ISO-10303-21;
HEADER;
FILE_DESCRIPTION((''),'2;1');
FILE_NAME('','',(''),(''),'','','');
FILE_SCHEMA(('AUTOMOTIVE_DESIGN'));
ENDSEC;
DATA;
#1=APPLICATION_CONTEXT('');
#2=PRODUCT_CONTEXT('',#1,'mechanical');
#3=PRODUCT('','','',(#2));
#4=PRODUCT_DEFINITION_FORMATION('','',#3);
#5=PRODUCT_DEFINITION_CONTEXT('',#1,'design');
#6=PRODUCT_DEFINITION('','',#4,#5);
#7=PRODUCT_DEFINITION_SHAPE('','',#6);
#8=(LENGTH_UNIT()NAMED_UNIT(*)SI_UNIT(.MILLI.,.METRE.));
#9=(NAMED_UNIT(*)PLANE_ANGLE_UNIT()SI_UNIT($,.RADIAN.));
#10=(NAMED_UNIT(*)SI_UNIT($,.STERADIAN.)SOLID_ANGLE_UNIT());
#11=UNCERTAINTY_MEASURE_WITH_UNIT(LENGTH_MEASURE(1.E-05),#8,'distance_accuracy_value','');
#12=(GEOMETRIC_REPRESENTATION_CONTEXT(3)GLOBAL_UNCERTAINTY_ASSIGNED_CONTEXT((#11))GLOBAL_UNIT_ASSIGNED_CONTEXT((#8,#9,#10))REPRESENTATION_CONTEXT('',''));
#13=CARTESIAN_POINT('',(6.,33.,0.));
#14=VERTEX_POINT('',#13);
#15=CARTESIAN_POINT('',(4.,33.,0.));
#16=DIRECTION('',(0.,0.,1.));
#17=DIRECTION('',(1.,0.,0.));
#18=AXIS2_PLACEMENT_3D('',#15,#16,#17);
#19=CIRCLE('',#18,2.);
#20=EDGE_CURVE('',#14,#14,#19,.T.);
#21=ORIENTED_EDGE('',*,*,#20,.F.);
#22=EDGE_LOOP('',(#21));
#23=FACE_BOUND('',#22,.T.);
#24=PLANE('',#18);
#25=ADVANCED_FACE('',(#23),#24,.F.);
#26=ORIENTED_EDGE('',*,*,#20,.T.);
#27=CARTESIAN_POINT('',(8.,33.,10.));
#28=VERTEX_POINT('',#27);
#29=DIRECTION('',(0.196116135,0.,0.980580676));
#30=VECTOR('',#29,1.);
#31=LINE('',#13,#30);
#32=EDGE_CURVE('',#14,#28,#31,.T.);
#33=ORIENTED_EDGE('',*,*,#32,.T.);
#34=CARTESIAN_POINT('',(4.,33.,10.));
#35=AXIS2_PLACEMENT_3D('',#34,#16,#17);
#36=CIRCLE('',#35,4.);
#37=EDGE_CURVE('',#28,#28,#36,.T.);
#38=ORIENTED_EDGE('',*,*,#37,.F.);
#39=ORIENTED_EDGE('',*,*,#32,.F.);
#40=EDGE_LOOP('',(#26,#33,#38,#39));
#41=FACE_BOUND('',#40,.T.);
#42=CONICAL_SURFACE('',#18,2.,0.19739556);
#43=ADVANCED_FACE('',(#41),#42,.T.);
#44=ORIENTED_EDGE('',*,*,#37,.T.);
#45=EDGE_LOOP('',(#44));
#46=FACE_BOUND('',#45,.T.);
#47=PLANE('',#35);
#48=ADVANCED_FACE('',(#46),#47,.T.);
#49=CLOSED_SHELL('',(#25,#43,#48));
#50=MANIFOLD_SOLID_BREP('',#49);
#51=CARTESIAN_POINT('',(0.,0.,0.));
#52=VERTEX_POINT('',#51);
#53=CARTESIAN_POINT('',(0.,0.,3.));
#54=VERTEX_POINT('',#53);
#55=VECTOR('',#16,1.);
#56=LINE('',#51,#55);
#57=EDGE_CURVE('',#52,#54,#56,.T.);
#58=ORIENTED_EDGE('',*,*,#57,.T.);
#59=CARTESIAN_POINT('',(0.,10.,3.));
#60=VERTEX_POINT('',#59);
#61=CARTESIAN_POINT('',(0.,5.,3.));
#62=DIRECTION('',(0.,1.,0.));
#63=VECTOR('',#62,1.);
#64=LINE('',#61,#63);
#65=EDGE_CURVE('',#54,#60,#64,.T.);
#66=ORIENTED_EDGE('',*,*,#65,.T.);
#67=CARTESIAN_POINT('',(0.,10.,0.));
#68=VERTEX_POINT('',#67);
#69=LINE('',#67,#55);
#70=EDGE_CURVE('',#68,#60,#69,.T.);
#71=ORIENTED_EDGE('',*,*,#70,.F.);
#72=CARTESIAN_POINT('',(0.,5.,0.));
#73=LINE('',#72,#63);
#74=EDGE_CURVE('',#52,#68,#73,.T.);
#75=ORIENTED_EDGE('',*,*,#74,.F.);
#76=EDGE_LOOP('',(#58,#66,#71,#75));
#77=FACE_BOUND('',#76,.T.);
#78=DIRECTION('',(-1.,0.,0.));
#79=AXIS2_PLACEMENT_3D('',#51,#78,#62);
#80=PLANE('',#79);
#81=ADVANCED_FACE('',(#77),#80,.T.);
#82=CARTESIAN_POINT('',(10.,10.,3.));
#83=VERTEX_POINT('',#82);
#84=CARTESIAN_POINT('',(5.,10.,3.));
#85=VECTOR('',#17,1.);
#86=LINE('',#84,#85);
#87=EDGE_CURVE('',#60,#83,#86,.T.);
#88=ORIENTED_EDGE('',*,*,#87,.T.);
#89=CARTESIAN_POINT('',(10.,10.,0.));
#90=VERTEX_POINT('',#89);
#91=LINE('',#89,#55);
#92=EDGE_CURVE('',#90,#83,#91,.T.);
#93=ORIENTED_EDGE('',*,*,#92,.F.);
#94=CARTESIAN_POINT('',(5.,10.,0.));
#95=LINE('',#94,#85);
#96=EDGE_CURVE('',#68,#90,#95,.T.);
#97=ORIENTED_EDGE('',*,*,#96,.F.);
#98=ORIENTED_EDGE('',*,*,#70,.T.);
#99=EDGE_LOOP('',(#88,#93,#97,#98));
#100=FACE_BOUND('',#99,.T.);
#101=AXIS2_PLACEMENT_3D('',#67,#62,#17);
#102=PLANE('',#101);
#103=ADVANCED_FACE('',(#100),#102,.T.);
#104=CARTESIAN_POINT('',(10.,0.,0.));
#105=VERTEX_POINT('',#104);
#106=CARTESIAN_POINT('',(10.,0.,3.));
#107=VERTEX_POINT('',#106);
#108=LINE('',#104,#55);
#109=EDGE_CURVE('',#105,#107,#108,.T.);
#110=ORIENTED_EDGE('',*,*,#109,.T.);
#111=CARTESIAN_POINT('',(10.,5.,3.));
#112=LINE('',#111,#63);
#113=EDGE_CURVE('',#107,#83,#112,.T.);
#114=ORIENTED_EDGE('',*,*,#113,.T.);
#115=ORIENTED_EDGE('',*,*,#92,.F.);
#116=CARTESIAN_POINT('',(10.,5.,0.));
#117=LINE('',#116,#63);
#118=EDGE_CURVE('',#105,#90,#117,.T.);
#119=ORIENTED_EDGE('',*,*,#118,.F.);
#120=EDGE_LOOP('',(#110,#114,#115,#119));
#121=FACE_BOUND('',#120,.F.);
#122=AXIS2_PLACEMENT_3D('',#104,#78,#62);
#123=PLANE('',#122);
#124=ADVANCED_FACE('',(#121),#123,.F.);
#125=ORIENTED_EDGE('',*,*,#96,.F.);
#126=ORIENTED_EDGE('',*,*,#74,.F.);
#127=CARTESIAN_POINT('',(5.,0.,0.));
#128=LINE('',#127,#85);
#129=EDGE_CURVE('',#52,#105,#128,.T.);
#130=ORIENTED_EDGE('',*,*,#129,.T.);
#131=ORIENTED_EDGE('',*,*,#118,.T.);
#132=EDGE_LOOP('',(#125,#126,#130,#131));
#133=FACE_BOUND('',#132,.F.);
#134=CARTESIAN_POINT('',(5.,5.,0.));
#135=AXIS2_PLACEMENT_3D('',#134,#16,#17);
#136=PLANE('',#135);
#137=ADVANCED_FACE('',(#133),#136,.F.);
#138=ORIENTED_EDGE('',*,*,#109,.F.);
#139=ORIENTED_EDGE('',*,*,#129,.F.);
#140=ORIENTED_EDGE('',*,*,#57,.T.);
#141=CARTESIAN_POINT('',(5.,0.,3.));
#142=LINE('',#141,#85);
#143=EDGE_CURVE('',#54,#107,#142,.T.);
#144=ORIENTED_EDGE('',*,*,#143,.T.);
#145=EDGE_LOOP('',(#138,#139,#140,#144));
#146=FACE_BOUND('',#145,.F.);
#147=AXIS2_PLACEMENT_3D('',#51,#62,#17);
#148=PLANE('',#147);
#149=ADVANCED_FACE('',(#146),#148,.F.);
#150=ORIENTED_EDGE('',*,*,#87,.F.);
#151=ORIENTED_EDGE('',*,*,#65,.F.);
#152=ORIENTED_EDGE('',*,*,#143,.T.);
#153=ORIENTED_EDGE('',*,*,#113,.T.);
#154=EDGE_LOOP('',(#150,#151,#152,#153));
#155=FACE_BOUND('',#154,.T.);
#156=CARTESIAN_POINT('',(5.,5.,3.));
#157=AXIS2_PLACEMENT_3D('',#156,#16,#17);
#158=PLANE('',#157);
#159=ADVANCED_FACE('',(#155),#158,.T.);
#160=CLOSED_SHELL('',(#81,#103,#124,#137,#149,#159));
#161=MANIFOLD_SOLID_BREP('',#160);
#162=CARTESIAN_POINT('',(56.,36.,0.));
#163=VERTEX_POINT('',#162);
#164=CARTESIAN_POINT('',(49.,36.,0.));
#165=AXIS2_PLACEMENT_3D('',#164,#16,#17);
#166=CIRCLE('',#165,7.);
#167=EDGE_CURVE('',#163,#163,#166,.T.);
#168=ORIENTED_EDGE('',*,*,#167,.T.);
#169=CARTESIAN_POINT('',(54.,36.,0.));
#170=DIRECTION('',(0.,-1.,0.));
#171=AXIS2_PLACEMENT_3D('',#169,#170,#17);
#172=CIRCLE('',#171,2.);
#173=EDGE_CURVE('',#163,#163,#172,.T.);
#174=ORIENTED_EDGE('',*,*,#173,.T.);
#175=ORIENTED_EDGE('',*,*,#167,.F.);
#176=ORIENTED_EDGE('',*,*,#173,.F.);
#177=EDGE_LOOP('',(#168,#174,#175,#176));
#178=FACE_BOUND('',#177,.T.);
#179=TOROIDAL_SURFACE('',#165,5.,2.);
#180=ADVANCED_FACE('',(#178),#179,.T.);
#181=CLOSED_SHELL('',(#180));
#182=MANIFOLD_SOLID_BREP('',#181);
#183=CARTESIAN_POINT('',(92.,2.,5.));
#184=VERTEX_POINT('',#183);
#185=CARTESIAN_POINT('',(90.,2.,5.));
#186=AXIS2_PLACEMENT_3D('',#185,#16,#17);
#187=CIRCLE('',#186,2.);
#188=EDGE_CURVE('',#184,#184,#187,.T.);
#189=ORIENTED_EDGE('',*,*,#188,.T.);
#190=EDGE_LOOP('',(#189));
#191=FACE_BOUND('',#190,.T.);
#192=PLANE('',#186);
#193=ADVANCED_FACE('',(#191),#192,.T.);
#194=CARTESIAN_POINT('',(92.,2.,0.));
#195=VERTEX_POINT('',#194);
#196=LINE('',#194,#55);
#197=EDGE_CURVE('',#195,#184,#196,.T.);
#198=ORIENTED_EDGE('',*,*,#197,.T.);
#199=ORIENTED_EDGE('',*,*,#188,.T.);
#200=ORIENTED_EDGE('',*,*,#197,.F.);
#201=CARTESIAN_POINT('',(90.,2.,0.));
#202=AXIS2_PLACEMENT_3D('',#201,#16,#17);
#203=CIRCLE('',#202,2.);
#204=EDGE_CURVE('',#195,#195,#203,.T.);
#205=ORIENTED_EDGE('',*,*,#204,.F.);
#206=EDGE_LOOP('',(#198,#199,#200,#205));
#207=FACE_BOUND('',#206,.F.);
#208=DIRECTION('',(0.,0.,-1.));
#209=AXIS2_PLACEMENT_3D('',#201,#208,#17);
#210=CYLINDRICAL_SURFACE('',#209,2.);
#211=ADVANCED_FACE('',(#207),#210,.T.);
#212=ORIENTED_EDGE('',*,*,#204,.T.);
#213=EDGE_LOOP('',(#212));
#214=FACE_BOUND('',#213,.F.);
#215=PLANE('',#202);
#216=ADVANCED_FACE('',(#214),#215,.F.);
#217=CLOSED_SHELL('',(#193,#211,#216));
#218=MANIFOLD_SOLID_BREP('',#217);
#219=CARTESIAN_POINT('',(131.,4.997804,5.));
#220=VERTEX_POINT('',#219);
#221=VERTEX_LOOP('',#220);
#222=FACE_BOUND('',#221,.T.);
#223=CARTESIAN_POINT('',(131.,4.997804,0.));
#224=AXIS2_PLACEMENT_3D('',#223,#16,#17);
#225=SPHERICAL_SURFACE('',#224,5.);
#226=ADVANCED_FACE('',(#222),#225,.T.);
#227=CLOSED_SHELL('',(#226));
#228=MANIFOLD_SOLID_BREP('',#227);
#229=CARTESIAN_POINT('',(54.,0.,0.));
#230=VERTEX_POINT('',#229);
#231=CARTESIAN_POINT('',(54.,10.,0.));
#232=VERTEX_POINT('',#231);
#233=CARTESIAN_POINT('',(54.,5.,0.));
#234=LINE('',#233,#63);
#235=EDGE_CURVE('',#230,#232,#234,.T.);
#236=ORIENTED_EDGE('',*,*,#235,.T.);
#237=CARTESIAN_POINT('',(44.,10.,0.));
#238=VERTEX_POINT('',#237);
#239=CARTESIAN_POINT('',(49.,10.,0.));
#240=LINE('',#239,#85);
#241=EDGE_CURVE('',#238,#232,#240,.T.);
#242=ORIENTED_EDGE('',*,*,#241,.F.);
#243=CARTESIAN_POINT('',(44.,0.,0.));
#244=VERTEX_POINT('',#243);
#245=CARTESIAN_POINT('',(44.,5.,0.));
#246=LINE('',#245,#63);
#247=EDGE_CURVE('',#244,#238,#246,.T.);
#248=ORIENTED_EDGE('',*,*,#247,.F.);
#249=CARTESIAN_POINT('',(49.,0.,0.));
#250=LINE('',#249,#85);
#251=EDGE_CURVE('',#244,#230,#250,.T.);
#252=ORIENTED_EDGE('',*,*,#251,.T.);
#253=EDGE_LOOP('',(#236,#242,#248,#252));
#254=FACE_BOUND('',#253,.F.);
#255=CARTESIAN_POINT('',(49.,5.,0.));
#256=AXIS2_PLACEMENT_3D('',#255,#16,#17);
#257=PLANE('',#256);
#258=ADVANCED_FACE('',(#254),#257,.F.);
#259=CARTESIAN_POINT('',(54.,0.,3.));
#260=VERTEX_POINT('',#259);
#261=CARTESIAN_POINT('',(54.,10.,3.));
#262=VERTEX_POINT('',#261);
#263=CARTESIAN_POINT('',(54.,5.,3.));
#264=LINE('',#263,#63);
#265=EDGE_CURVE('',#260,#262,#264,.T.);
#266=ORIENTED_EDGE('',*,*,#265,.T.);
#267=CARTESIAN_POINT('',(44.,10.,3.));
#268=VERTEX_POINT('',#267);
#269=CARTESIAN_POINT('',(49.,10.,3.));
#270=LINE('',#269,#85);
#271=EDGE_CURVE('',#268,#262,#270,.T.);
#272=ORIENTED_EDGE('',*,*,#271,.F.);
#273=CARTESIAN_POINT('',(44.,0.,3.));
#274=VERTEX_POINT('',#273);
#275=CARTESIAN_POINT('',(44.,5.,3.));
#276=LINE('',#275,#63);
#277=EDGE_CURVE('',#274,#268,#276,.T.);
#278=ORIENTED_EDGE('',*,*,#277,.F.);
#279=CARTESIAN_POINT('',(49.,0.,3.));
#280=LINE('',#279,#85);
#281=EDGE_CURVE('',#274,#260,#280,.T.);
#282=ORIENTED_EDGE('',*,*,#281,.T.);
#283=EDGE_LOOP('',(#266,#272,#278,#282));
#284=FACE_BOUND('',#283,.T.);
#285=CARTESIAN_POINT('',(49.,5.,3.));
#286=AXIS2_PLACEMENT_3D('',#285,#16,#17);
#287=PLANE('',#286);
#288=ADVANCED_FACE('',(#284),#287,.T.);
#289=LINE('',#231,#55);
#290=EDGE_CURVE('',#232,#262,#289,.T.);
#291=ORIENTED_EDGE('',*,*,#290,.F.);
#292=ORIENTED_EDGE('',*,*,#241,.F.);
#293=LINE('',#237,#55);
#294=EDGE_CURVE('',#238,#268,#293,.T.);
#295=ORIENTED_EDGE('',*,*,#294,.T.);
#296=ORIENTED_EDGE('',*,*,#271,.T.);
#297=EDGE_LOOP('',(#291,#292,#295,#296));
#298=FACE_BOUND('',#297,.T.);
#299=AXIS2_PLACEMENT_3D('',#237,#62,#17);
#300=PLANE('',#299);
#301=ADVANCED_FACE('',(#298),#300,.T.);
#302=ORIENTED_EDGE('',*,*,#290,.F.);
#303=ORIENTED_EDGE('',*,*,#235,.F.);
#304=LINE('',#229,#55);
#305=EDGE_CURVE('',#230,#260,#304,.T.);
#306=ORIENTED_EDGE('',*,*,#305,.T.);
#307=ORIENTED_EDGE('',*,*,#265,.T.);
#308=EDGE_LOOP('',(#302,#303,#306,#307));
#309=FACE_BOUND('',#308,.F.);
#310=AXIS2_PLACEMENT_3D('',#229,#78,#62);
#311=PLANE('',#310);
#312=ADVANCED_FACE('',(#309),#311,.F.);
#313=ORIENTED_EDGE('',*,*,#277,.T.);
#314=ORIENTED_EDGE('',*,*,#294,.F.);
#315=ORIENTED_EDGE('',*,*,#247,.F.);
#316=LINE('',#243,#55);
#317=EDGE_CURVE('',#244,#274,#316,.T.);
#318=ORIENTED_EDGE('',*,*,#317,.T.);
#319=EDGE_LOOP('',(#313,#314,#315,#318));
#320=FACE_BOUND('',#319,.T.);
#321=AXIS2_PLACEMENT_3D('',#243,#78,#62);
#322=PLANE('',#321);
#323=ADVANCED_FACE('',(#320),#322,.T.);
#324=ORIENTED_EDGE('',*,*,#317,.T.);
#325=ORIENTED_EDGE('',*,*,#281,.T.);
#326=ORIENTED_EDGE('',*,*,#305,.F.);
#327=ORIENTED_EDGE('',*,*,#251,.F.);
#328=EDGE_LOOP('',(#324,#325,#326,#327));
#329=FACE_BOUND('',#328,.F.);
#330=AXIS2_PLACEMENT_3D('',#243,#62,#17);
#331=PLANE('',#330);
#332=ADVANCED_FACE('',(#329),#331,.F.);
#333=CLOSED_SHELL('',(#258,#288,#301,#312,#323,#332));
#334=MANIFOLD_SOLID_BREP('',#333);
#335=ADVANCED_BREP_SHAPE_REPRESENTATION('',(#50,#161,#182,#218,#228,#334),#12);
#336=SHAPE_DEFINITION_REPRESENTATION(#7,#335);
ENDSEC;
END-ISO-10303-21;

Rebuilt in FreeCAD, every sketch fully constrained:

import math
import FreeCAD as App
import Part
import Sketcher
from FreeCAD import Vector


def add_polygon(sketch, points):
    """Adds a closed chain of lines whose ends are joined by coincident constraints."""
    first, n = sketch.GeometryCount, len(points)
    for a, b in zip(points, points[1:] + points[:1]):
        sketch.addGeometry(Part.LineSegment(App.Vector(*a, 0), App.Vector(*b, 0)), False)
    for i in range(n):
        sketch.addConstraint(Sketcher.Constraint("Coincident", first + i, 2, first + (i + 1) % n, 1))

doc = App.newDocument("Part")
params = doc.addObject("Spreadsheet::Sheet", "Params")
for row, (alias, value) in enumerate([
    ("sketch1_width", "10 mm"),
    ("pad1_length", "3 mm"),
    ("sketch2_width", "10 mm"),
    ("pad2_length", "3 mm"),
    ("sketch3_diameter", "4 mm"),
    ("pad3_length", "5 mm"),
    ("sketch4_radius", "5 mm"),
    ("revolution_angle", "360 deg"),
    ("sketch5_width", "2 mm"),
    ("sketch5_width2", "4 mm"),
    ("sketch5_height", "10 mm"),
    ("revolution2_angle", "360 deg"),
    ("sketch6_diameter", "4 mm"),
    ("sketch6_height", "10 mm"),
    ("revolution3_angle", "360 deg"),
], start=1):
    params.set(f"A{row}", alias)
    params.set(f"B{row}", "=" + value)
    params.setAlias(f"B{row}", alias)

body = doc.addObject("PartDesign::Body", "Body")

sketch1 = body.newObject("Sketcher::SketchObject", "Sketch")
sketch1.AttachmentSupport = (doc.getObject("XY_Plane"), [""])
sketch1.MapMode = "FlatFace"
add_polygon(sketch1, [(0, 10), (0, 0), (10, 0), (10, 10)])
sketch1.addConstraint([
    Sketcher.Constraint("Vertical", 0),
    Sketcher.Constraint("Horizontal", 1),
    Sketcher.Constraint("Vertical", 2),
    Sketcher.Constraint("Horizontal", 3),
    Sketcher.Constraint("Coincident", 0, 2, -1, 1),
    Sketcher.Constraint("Equal", 3, 0),
    Sketcher.Constraint("DistanceX", 1, 1, 1, 2, 10.0),
])
sketch1.setExpression("Constraints[10]", "Params.sketch1_width")
pad1 = body.newObject("PartDesign::Pad", "Pad")
pad1.Profile = sketch1
pad1.setExpression("Length", "Params.pad1_length")
body2 = doc.addObject("PartDesign::Body", "Body001")

sketch2 = body2.newObject("Sketcher::SketchObject", "Sketch001")
sketch2.AttachmentSupport = (doc.getObject("XY_Plane001"), [""])
sketch2.MapMode = "FlatFace"
add_polygon(sketch2, [(44, 10), (44, 0), (54, 0), (54, 10)])
sketch2.addConstraint([
    Sketcher.Constraint("Vertical", 0),
    Sketcher.Constraint("Horizontal", 1),
    Sketcher.Constraint("Vertical", 2),
    Sketcher.Constraint("Horizontal", 3),
    Sketcher.Constraint("PointOnObject", 0, 2, -1),
    Sketcher.Constraint("Equal", 3, 0),
    Sketcher.Constraint("DistanceX", 1, 1, 1, 2, 10.0),
    Sketcher.Constraint("DistanceX", -1, 1, 0, 2, 44.0),
])
sketch2.setExpression("Constraints[10]", "Params.sketch2_width")
pad2 = body2.newObject("PartDesign::Pad", "Pad001")
pad2.Profile = sketch2
pad2.setExpression("Length", "Params.pad2_length")
body3 = doc.addObject("PartDesign::Body", "Body002")

sketch3 = body3.newObject("Sketcher::SketchObject", "Sketch002")
sketch3.AttachmentSupport = (doc.getObject("XY_Plane002"), [""])
sketch3.MapMode = "FlatFace"
sketch3.addGeometry(Part.Circle(Vector(90, 2, 0), Vector(0, 0, 1), 2), False)
sketch3.addConstraint([
    Sketcher.Constraint("Diameter", 0, 4.0),
    Sketcher.Constraint("DistanceX", -1, 1, 0, 3, 90.0),
    Sketcher.Constraint("DistanceY", -1, 1, 0, 3, 2.0),
])
sketch3.setExpression("Constraints[0]", "Params.sketch3_diameter")
pad3 = body3.newObject("PartDesign::Pad", "Pad002")
pad3.Profile = sketch3
pad3.setExpression("Length", "Params.pad3_length")
body4 = doc.addObject("PartDesign::Body", "Body003")

sketch4 = body4.newObject("Sketcher::SketchObject", "Sketch003")
sketch4.AttachmentSupport = (doc.getObject("XZ_Plane003"), [""])
sketch4.MapMode = "FlatFace"
sketch4.AttachmentOffset = App.Placement(Vector(0, 0, -4.997804), App.Rotation())
sketch4.addGeometry([
    Part.ArcOfCircle(Part.Circle(Vector(131, 0, 0), Vector(0, 0, 1), 5), math.radians(-90), math.radians(90)),
    Part.LineSegment(Vector(131, 5, 0), Vector(131, -5, 0)),
], False)
sketch4.addGeometry(Part.LineSegment(Vector(131, -5, 0), Vector(131, 5, 0)), True)
sketch4.addConstraint([
    Sketcher.Constraint("Coincident", 0, 1, 1, 2),
    Sketcher.Constraint("Coincident", 1, 1, 0, 2),
    Sketcher.Constraint("Vertical", 1),
    Sketcher.Constraint("Vertical", 2),
    Sketcher.Constraint("Coincident", 2, 1, 0, 1),
    Sketcher.Constraint("PointOnObject", 0, 3, -1),
    Sketcher.Constraint("Equal", 1, 2),
    Sketcher.Constraint("Radius", 0, 5.0),
    Sketcher.Constraint("DistanceX", -1, 1, 0, 3, 131.0),
    Sketcher.Constraint("DistanceX", -1, 1, 0, 1, 131.0),
])
sketch4.setExpression("Constraints[7]", "Params.sketch4_radius")
revolution = body4.newObject("PartDesign::Revolution", "Revolution")
revolution.Profile = sketch4
revolution.ReferenceAxis = (sketch4, ["Axis0"])
revolution.setExpression("Angle", "Params.revolution_angle")
body5 = doc.addObject("PartDesign::Body", "Body004")

sketch5 = body5.newObject("Sketcher::SketchObject", "Sketch004")
sketch5.AttachmentSupport = (doc.getObject("XZ_Plane004"), [""])
sketch5.MapMode = "FlatFace"
sketch5.AttachmentOffset = App.Placement(Vector(0, 0, -33), App.Rotation())
add_polygon(sketch5, [(4, 0), (6, 0), (8, 10), (4, 10)])
sketch5.addGeometry(Part.LineSegment(Vector(4, 0, 0), Vector(4, 10, 0)), True)
sketch5.addConstraint([
    Sketcher.Constraint("Horizontal", 0),
    Sketcher.Constraint("Horizontal", 2),
    Sketcher.Constraint("Vertical", 3),
    Sketcher.Constraint("Vertical", 4),
    Sketcher.Constraint("Coincident", 4, 1, 3, 2),
    Sketcher.Constraint("PointOnObject", 0, 2, -1),
    Sketcher.Constraint("Horizontal", 1, 2, 4, 2),
    Sketcher.Constraint("DistanceX", 0, 1, 0, 2, 2.0),
    Sketcher.Constraint("DistanceX", 2, 2, 2, 1, 4.0),
    Sketcher.Constraint("DistanceY", 3, 2, 3, 1, 10.0),
    Sketcher.Constraint("DistanceX", -1, 1, 0, 2, 6.0),
])
sketch5.setExpression("Constraints[11]", "Params.sketch5_width")
sketch5.setExpression("Constraints[12]", "Params.sketch5_width2")
sketch5.setExpression("Constraints[13]", "Params.sketch5_height")
revolution2 = body5.newObject("PartDesign::Revolution", "Revolution001")
revolution2.Profile = sketch5
revolution2.ReferenceAxis = (sketch5, ["Axis0"])
revolution2.setExpression("Angle", "Params.revolution2_angle")
body6 = doc.addObject("PartDesign::Body", "Body005")

sketch6 = body6.newObject("Sketcher::SketchObject", "Sketch005")
sketch6.AttachmentSupport = (doc.getObject("XZ_Plane005"), [""])
sketch6.MapMode = "FlatFace"
sketch6.AttachmentOffset = App.Placement(Vector(0, 0, -36), App.Rotation())
sketch6.addGeometry(Part.Circle(Vector(54, 0, 0), Vector(0, 0, 1), 2), False)
sketch6.addGeometry(Part.LineSegment(Vector(49, 0, 0), Vector(49, 10, 0)), True)
sketch6.addConstraint([
    Sketcher.Constraint("Vertical", 1),
    Sketcher.Constraint("PointOnObject", 0, 3, -1),
    Sketcher.Constraint("PointOnObject", 1, 1, -1),
    Sketcher.Constraint("Diameter", 0, 4.0),
    Sketcher.Constraint("DistanceY", 1, 1, 1, 2, 10.0),
    Sketcher.Constraint("DistanceX", -1, 1, 0, 3, 54.0),
    Sketcher.Constraint("DistanceX", -1, 1, 1, 1, 49.0),
])
sketch6.setExpression("Constraints[3]", "Params.sketch6_diameter")
sketch6.setExpression("Constraints[4]", "Params.sketch6_height")
revolution3 = body6.newObject("PartDesign::Revolution", "Revolution002")
revolution3.Profile = sketch6
revolution3.ReferenceAxis = (sketch6, ["Axis0"])
revolution3.setExpression("Angle", "Params.revolution3_angle")

doc.recompute()
